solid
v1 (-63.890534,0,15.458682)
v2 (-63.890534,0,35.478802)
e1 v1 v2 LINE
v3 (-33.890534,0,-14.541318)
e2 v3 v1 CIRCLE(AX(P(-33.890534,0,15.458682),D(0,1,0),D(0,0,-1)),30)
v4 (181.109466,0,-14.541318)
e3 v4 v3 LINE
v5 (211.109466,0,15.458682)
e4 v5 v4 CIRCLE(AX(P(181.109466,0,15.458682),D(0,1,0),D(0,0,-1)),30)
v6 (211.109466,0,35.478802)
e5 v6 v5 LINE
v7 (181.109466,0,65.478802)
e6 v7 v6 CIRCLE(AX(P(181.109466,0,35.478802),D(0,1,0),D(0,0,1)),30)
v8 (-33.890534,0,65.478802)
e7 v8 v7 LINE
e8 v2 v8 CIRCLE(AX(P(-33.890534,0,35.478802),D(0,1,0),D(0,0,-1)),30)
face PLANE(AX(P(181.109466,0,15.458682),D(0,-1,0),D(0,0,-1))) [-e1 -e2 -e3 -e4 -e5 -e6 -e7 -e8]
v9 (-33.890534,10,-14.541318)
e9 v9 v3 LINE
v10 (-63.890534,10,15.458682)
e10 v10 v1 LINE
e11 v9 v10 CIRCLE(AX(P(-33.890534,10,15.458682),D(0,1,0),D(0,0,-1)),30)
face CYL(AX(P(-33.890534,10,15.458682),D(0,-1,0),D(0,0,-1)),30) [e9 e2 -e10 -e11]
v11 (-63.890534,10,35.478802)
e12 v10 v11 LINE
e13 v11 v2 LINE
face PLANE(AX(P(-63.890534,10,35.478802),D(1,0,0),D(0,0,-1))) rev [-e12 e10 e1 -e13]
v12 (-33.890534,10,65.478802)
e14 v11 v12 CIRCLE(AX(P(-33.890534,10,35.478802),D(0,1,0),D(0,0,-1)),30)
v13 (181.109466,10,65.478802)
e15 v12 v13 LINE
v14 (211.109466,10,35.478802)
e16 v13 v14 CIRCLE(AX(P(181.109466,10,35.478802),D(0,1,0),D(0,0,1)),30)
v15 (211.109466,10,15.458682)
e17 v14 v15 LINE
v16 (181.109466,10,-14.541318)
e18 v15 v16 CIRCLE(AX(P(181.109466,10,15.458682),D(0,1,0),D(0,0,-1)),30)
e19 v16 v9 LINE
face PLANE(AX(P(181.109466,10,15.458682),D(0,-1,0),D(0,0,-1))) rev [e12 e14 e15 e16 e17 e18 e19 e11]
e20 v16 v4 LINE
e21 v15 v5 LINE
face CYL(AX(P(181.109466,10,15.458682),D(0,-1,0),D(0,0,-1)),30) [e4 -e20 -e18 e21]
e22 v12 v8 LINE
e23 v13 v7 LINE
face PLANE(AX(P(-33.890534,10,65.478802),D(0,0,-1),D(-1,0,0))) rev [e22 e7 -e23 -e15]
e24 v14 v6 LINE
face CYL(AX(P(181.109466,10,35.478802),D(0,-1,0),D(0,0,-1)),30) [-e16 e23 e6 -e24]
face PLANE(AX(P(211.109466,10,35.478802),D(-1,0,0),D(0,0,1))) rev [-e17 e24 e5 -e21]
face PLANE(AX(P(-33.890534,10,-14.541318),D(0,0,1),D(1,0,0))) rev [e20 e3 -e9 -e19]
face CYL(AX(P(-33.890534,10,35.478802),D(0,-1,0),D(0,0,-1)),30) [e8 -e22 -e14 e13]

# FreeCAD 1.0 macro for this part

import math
import FreeCAD as App
import Part
import Sketcher

V = App.Vector

doc = App.newDocument("Part")
params = doc.addObject("Spreadsheet::Sheet", "Params")
for row, (alias, value) in enumerate([
    ("sketch1_radius", "30 mm"),
    ("sketch1_width", "215 mm"),
    ("pad1_length", "10 mm"),
], start=1):
    params.set(f"A{row}", alias)
    params.set(f"B{row}", "=" + value)
    params.setAlias(f"B{row}", alias)

body = doc.addObject("PartDesign::Body", "Body")

# Sketch on XZ plane
sketch1 = body.newObject("Sketcher::SketchObject", "Sketch")
sketch1.AttachmentSupport = (doc.getObject("XZ_Plane"), [""])
sketch1.MapMode = "FlatFace"
sketch1.addGeometry(Part.LineSegment(V(-34, 65, 0), V(181, 65, 0)), False)
sketch1.addGeometry(Part.ArcOfCircle(Part.Circle(V(181, 35, 0), V(0, 0, 1), 30), math.radians(0), math.radians(90)), False)
sketch1.addGeometry(Part.LineSegment(V(211, 35, 0), V(211, 15, 0)), False)
sketch1.addGeometry(Part.ArcOfCircle(Part.Circle(V(181, 15, 0), V(0, 0, 1), 30), math.radians(-90), math.radians(0)), False)
sketch1.addGeometry(Part.LineSegment(V(181, -15, 0), V(-34, -15, 0)), False)
sketch1.addGeometry(Part.ArcOfCircle(Part.Circle(V(-34, 15, 0), V(0, 0, 1), 30), math.radians(180), math.radians(270)), False)
sketch1.addGeometry(Part.LineSegment(V(-64, 15, 0), V(-64, 35, 0)), False)
sketch1.addGeometry(Part.ArcOfCircle(Part.Circle(V(-34, 35, 0), V(0, 0, 1), 30), math.radians(90), math.radians(180)), False)
sketch1.addConstraint(Sketcher.Constraint("Tangent", 0, 2, 1, 2))
sketch1.addConstraint(Sketcher.Constraint("Tangent", 1, 1, 2, 1))
sketch1.addConstraint(Sketcher.Constraint("Tangent", 2, 2, 3, 2))
sketch1.addConstraint(Sketcher.Constraint("Tangent", 3, 1, 4, 1))
sketch1.addConstraint(Sketcher.Constraint("Tangent", 4, 2, 5, 2))
sketch1.addConstraint(Sketcher.Constraint("Tangent", 5, 1, 6, 1))
sketch1.addConstraint(Sketcher.Constraint("Tangent", 6, 2, 7, 2))
sketch1.addConstraint(Sketcher.Constraint("Tangent", 7, 1, 0, 1))
sketch1.addConstraint(Sketcher.Constraint("Horizontal", 0))
sketch1.addConstraint(Sketcher.Constraint("Vertical", 2))
sketch1.addConstraint(Sketcher.Constraint("Horizontal", 4))
sketch1.addConstraint(Sketcher.Constraint("Vertical", 6))
sketch1.addConstraint(Sketcher.Constraint("Equal", 1, 3))
sketch1.addConstraint(Sketcher.Constraint("Equal", 3, 5))
sketch1.addConstraint(Sketcher.Constraint("Equal", 5, 7))
sketch1.addConstraint(Sketcher.Constraint("Radius", 1, 30.0))
sketch1.addConstraint(Sketcher.Constraint("DistanceX", 0, 1, 0, 2, 215.0))
sketch1.addConstraint(Sketcher.Constraint("DistanceY", 2, 2, 2, 1, 20.02012))
sketch1.addConstraint(Sketcher.Constraint("DistanceY", -1, 1, 3, 3, 15.458682))
sketch1.addConstraint(Sketcher.Constraint("DistanceX", -1, 1, 1, 3, 181.109466))
sketch1.setExpression("Constraints[15]", "Params.sketch1_radius")
sketch1.setExpression("Constraints[16]", "Params.sketch1_width")
pad1 = body.newObject("PartDesign::Pad", "Pad")
pad1.Profile = sketch1
pad1.setExpression("Length", "Params.pad1_length")
pad1.Reversed = True

doc.recompute()
